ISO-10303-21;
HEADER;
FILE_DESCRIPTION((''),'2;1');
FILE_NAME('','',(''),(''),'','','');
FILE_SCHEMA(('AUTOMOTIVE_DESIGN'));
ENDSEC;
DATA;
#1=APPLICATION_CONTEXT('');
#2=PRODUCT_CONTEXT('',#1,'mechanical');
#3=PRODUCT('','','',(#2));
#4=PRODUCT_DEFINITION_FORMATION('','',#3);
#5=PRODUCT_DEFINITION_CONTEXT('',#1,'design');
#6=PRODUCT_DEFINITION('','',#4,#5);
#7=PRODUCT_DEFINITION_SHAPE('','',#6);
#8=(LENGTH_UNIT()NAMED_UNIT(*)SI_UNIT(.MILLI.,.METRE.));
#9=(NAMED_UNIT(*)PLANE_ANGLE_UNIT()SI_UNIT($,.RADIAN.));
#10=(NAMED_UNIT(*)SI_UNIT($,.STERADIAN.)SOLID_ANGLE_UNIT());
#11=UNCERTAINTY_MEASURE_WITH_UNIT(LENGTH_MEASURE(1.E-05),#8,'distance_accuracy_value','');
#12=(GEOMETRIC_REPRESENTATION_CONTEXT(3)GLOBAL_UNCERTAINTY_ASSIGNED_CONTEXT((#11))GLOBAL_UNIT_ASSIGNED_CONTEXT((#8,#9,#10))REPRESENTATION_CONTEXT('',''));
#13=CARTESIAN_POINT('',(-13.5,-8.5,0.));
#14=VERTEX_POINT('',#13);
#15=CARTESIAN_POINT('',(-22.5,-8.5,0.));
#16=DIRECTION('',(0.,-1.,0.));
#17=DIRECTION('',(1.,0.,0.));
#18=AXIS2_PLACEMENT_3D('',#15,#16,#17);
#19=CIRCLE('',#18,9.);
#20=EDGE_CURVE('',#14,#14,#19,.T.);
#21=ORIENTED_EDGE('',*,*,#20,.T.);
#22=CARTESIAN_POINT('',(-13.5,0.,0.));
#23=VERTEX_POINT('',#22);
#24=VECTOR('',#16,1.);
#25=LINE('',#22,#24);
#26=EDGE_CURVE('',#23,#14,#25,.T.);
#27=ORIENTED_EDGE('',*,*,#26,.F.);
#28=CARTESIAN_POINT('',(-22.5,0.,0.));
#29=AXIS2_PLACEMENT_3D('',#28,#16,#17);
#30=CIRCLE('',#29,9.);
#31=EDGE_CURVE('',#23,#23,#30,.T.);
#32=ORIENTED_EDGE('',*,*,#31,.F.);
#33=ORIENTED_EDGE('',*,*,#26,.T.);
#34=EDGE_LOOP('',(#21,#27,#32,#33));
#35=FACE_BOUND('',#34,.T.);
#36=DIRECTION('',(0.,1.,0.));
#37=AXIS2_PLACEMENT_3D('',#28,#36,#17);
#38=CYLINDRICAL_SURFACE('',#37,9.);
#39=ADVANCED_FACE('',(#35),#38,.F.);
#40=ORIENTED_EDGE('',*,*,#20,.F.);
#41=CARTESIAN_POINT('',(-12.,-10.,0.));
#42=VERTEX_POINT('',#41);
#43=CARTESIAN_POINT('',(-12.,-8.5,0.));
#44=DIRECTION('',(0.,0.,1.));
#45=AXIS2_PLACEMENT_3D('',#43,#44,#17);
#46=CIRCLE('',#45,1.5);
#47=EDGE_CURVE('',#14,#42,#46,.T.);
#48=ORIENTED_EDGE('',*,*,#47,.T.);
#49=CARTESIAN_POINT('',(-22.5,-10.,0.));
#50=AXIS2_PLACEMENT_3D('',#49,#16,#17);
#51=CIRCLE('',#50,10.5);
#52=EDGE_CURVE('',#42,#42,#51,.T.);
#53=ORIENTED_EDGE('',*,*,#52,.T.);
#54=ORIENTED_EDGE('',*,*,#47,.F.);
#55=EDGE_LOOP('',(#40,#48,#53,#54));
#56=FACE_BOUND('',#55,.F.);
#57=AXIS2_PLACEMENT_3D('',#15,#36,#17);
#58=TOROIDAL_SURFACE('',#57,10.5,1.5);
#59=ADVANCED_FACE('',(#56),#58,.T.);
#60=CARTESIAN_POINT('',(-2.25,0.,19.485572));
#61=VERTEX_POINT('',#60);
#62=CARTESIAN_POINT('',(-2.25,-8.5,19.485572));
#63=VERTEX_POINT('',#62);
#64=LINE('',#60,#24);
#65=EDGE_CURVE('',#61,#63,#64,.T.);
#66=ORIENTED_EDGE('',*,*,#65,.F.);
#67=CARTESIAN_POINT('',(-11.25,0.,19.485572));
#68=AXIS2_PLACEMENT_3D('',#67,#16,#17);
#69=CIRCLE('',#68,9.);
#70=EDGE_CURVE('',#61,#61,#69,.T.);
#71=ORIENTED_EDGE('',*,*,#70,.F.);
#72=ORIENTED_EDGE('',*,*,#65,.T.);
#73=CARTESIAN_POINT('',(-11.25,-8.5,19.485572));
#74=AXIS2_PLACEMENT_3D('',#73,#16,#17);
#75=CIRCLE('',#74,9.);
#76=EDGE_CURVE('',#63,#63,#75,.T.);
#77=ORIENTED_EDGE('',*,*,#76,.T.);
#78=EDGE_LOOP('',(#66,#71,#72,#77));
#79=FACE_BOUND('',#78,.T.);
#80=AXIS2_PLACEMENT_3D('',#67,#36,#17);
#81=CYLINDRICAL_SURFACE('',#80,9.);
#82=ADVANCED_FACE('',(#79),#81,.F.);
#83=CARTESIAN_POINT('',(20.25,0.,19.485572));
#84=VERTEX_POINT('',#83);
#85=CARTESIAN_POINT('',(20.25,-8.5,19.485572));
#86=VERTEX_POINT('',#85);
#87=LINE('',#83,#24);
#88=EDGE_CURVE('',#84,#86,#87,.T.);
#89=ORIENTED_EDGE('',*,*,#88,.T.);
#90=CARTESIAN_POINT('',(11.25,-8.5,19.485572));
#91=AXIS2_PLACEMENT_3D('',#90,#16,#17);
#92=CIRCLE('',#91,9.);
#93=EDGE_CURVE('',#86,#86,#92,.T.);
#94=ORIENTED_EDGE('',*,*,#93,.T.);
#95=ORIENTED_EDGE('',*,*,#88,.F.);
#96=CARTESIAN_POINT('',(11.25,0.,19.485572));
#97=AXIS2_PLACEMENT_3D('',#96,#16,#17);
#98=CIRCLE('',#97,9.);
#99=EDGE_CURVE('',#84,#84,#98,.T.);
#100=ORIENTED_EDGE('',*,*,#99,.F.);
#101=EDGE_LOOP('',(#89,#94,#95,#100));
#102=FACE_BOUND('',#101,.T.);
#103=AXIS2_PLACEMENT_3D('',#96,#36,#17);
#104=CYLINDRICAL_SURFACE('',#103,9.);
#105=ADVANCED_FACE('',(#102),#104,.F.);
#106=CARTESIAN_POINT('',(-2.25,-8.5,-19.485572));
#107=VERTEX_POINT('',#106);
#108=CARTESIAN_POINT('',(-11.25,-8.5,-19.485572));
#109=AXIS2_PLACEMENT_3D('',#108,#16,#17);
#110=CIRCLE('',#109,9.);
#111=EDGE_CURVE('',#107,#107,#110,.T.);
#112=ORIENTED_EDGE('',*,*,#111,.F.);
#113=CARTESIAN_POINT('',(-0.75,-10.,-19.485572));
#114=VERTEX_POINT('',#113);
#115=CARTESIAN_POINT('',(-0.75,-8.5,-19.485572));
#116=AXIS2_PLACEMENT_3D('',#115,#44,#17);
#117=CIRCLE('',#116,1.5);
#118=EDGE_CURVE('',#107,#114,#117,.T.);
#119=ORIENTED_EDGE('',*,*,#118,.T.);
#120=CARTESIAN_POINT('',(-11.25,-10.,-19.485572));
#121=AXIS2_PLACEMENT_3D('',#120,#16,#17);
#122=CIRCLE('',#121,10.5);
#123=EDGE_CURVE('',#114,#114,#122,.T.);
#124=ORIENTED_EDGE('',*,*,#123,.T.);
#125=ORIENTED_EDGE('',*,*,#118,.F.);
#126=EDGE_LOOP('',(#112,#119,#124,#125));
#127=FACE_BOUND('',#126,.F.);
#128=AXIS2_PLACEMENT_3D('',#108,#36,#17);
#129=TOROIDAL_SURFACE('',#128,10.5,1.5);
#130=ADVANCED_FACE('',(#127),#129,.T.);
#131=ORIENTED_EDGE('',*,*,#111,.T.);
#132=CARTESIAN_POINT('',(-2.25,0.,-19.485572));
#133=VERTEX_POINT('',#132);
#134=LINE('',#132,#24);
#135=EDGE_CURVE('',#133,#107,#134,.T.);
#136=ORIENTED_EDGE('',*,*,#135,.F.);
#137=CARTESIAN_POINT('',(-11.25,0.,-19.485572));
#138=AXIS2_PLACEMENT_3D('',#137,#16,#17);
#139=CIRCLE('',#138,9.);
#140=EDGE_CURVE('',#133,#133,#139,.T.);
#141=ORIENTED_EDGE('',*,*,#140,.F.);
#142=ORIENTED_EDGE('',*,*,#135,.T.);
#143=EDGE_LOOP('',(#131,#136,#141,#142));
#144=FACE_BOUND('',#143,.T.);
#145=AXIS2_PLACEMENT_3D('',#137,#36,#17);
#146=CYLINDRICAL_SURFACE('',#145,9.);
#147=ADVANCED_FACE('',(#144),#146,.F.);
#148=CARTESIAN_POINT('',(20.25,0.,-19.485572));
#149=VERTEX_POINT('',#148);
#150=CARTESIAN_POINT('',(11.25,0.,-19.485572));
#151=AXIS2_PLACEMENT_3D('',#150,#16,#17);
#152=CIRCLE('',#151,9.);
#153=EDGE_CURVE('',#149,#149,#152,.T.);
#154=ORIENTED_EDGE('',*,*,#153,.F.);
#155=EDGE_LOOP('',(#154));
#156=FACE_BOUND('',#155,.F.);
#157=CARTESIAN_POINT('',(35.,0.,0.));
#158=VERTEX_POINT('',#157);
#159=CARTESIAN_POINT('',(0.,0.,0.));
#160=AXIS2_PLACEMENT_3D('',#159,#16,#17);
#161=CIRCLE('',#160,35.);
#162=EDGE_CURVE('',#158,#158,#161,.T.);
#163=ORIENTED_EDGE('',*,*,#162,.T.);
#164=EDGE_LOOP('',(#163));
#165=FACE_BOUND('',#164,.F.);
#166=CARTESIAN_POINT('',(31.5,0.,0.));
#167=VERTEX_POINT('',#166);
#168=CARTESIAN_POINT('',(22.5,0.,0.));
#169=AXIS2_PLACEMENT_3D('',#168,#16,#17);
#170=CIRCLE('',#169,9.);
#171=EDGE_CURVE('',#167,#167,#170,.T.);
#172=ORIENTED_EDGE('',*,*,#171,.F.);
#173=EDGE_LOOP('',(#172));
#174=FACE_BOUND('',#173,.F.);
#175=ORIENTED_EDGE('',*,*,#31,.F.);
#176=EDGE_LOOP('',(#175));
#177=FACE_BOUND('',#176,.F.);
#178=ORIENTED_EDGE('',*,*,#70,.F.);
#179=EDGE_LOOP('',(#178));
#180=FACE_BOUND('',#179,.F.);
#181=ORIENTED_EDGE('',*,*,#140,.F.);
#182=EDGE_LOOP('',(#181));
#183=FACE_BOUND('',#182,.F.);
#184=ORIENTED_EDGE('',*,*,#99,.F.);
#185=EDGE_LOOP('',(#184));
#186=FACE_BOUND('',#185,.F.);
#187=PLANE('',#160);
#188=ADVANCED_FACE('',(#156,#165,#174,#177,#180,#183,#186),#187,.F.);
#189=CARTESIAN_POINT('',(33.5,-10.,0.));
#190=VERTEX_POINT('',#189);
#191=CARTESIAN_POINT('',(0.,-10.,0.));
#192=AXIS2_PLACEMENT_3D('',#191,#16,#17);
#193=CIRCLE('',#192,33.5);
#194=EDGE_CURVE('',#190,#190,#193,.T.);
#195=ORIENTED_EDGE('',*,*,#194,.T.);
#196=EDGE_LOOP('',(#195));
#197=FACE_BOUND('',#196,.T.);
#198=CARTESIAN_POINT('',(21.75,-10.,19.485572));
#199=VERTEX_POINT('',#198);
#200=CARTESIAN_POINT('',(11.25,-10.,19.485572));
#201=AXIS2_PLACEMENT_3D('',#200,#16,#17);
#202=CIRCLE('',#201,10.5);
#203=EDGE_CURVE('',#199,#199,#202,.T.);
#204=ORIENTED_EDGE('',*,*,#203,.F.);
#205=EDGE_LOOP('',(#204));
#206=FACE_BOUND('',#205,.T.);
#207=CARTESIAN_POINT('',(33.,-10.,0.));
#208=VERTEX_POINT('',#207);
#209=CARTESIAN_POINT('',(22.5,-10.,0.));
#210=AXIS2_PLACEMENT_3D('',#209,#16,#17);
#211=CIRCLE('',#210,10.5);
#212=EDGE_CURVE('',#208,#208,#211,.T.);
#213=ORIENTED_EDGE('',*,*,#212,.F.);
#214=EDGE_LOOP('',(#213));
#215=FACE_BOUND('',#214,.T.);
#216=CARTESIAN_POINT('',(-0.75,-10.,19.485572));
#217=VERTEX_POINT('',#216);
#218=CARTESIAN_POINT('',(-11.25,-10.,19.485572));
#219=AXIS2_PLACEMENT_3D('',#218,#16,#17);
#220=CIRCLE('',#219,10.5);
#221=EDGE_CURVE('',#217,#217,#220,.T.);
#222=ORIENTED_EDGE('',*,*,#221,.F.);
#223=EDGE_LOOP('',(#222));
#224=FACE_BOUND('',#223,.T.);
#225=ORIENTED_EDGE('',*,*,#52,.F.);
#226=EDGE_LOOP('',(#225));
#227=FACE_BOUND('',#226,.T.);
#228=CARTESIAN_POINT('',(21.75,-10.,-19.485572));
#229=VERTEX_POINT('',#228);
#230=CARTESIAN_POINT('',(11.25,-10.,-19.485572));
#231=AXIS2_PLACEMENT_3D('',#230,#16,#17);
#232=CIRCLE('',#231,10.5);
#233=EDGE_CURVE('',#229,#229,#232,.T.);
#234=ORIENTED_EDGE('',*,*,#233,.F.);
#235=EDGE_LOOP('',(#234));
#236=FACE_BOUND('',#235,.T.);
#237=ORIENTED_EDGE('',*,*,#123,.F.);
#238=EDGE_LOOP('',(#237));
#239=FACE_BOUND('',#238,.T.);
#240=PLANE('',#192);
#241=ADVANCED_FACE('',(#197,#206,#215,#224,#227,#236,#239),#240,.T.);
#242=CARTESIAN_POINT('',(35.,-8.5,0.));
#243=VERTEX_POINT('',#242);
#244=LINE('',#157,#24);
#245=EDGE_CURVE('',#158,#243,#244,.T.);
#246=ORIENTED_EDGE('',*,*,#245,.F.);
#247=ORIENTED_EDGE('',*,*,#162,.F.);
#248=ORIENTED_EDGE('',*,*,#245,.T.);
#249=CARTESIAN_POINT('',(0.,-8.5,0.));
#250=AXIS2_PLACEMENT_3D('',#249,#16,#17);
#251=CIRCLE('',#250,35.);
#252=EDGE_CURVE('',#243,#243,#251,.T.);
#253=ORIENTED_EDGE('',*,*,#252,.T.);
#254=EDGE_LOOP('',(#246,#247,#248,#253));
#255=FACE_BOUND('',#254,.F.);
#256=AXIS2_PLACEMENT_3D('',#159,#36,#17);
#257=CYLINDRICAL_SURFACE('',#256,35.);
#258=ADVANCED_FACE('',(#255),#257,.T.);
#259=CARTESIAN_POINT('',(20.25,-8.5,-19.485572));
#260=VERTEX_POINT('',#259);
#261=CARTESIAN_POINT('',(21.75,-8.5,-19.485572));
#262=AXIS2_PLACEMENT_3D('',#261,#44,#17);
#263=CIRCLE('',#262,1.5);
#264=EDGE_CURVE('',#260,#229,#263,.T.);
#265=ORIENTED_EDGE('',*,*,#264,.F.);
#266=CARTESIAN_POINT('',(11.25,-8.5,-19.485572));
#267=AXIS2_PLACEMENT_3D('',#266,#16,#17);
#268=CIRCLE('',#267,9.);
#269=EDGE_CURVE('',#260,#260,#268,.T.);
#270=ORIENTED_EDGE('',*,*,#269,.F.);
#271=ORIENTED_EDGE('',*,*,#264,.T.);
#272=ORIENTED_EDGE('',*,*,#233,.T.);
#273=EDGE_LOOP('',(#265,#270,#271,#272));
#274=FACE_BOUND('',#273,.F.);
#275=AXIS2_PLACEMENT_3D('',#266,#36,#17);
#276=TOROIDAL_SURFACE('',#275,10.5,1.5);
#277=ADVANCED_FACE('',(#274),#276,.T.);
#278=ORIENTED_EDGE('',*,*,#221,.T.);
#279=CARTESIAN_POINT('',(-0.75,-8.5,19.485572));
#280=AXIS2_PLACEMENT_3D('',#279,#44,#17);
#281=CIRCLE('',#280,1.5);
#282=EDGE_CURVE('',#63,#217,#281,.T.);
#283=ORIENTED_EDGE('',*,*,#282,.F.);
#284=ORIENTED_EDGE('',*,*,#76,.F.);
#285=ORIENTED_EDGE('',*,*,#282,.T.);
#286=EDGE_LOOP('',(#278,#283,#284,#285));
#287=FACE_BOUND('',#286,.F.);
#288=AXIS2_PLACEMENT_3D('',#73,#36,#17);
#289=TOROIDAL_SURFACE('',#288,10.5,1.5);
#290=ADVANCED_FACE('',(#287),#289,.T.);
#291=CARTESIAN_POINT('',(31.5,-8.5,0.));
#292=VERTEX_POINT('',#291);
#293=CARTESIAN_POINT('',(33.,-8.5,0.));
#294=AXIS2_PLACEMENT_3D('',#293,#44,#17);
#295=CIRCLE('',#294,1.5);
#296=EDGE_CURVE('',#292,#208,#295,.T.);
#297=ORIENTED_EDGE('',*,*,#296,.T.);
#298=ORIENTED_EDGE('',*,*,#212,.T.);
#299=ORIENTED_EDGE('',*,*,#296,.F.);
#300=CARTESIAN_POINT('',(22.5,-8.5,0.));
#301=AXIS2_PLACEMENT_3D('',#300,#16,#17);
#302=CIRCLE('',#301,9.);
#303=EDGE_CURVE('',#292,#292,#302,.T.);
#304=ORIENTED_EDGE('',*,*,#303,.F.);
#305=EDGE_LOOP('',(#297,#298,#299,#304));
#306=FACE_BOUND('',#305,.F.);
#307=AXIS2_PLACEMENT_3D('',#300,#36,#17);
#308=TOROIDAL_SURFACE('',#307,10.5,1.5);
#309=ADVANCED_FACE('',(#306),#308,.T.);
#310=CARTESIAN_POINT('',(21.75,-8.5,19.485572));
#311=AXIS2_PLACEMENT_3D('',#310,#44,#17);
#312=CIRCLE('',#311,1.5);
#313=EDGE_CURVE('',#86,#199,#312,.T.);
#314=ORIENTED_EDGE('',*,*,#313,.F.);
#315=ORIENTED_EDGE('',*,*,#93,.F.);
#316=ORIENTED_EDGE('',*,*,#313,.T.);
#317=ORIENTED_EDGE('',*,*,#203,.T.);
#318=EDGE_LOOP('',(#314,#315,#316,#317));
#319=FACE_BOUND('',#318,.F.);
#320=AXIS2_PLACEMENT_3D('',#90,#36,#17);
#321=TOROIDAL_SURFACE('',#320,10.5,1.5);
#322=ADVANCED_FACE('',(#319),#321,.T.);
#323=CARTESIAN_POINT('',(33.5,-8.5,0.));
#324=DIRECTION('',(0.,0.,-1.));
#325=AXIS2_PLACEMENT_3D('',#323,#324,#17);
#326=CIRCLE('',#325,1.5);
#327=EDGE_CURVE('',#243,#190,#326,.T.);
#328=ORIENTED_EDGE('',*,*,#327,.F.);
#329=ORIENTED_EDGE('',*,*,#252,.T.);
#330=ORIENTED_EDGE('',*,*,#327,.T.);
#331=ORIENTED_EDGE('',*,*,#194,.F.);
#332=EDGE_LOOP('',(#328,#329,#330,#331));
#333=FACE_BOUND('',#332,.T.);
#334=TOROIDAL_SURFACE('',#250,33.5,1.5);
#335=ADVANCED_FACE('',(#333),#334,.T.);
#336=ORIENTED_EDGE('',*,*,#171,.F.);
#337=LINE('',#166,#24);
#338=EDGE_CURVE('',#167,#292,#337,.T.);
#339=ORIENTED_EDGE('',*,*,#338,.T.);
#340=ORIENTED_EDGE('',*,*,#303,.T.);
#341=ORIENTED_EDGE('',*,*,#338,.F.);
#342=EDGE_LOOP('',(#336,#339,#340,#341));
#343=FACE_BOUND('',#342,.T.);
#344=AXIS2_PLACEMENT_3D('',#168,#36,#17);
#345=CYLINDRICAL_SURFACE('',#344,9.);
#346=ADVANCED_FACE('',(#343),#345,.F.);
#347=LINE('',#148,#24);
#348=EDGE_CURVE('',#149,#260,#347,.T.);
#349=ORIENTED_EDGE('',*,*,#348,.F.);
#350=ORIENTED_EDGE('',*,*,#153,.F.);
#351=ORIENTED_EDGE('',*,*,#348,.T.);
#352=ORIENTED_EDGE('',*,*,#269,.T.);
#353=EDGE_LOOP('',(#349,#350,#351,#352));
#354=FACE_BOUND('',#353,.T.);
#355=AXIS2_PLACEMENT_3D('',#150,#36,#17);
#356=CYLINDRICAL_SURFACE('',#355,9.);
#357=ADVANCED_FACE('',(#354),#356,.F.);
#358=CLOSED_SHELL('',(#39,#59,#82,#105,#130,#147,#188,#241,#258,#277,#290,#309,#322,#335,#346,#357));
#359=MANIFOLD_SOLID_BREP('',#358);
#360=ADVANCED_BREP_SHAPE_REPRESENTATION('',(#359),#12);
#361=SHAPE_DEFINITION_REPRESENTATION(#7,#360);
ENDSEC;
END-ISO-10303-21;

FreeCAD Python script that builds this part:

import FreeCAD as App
import Part
import Sketcher
from FreeCAD import Vector
Q = App.Units.Quantity


def edges_at(feature, points):
    """Names of the edges that pass closest to the given points."""
    edges = feature.Shape.Edges
    near = lambda p: min(range(len(edges)), key=lambda i: edges[i].distToShape(Part.Vertex(*p))[0])
    return sorted({f"Edge{near(p) + 1}" for p in points})

doc = App.newDocument("Part")
body = doc.addObject("PartDesign::Body", "Body")

# Sketch on XZ plane
sketch1 = body.newObject("Sketcher::SketchObject", "Sketch")
sketch1.AttachmentSupport = (doc.getObject("XZ_Plane"), [""])
sketch1.MapMode = "FlatFace"
sketch1.addGeometry([
    Part.Circle(Vector(0, 0, 0), Vector(0, 0, 1), 35),  # 0
    Part.Circle(Vector(-11.25, -19.485572, 0), Vector(0, 0, 1), 9),  # 1
    Part.Circle(Vector(11.25, -19.485572, 0), Vector(0, 0, 1), 9),  # 2
    Part.Circle(Vector(-22.5, 0, 0), Vector(0, 0, 1), 9),  # 3
    Part.Circle(Vector(-11.25, 19.485572, 0), Vector(0, 0, 1), 9),  # 4
    Part.Circle(Vector(22.5, 0, 0), Vector(0, 0, 1), 9),  # 5
    Part.Circle(Vector(11.25, 19.485572, 0), Vector(0, 0, 1), 9),  # 6
], False)
sketch1.addConstraint([
    Sketcher.Constraint("Coincident", 0, 3, -1, 1),
    Sketcher.Constraint("Equal", 1, 2),
    Sketcher.Constraint("Equal", 2, 3),
    Sketcher.Constraint("Equal", 3, 4),
    Sketcher.Constraint("Equal", 4, 5),
    Sketcher.Constraint("Equal", 5, 6),
    Sketcher.Constraint("Symmetric", 2, 3, 4, 3, -1, 1),
    Sketcher.Constraint("Symmetric", 3, 3, 5, 3, -1, 1),
    Sketcher.Constraint("Symmetric", 1, 3, 6, 3, -1, 1),
    Sketcher.Constraint("Symmetric", 1, 3, 2, 3, -2),
    Sketcher.Constraint("PointOnObject", 3, 3, -1),
    Sketcher.Constraint("Diameter", 0, Q("70 mm")),
    Sketcher.Constraint("Diameter", 1, Q("18 mm")),
    Sketcher.Constraint("DistanceX", 3, 3, 5, 3, Q("45 mm")),
    Sketcher.Constraint("DistanceX", 1, 3, 2, 3, Q("22.5 mm")),
    Sketcher.Constraint("DistanceY", 1, 3, -1, 1, Q("19.485572 mm")),
])
pad1 = body.newObject("PartDesign::Pad", "Pad")
pad1.Profile = sketch1
pad1.Length = 10
doc.recompute()

fillet = body.newObject("PartDesign::Fillet", "Fillet")
fillet.Base = (pad1, edges_at(pad1, [
    (-35, -10, 0),
    (-20.25, -10, 19.486),
    (-31.5, -10, 0),
    (2.25, -10, 19.486),
    (13.5, -10, 0),
    (2.25, -10, -19.486),
    (-20.25, -10, -19.486),
]))
fillet.Radius = 1.5

doc.recompute()
